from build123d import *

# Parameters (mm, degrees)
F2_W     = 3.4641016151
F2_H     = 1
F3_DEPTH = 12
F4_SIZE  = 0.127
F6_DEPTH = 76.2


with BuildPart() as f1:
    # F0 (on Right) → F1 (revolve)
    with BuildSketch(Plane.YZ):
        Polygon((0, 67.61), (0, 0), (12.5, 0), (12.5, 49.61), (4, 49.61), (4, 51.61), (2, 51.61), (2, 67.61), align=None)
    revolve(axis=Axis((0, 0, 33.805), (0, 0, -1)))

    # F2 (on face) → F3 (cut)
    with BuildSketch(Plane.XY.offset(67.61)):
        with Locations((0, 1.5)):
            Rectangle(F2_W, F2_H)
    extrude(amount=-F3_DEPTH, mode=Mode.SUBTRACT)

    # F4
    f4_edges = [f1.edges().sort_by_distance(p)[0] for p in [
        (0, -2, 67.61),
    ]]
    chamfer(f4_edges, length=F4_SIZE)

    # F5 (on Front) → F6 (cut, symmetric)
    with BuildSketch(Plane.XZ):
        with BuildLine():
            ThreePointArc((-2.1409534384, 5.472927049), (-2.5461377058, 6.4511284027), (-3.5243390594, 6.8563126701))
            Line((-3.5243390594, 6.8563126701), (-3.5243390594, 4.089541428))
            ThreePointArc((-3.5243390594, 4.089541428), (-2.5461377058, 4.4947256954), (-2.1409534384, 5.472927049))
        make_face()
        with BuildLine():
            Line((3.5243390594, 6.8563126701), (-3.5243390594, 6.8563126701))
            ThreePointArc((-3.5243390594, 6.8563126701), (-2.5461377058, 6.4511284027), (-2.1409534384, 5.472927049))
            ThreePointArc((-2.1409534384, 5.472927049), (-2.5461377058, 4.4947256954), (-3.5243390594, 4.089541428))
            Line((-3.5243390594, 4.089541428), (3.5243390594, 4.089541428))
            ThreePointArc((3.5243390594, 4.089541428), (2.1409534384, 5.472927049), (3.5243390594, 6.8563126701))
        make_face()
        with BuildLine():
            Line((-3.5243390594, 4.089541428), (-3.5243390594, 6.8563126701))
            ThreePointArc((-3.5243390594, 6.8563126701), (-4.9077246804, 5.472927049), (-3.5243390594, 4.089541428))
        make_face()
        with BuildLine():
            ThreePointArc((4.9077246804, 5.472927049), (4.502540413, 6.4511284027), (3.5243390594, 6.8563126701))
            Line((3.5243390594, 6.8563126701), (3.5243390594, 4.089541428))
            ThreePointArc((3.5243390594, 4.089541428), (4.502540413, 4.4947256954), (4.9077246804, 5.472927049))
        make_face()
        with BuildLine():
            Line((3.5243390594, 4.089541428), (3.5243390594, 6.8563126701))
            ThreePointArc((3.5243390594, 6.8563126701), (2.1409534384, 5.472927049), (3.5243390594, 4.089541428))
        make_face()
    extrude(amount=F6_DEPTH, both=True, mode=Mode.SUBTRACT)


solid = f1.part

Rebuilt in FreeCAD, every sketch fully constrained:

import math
import FreeCAD as App
import Part
import Sketcher

V = App.Vector


def edges_at(feature, points):
    """Names of the edges that pass closest to the given points."""
    edges = feature.Shape.Edges
    near = lambda p: min(range(len(edges)), key=lambda i: edges[i].distToShape(Part.Vertex(*p))[0])
    return sorted({f"Edge{near(p) + 1}" for p in points})


def add_polygon(sketch, points):
    """Adds a closed chain of lines whose ends are joined by coincident constraints."""
    first, n = sketch.GeometryCount, len(points)
    for a, b in zip(points, points[1:] + points[:1]):
        sketch.addGeometry(Part.LineSegment(App.Vector(*a, 0), App.Vector(*b, 0)), False)
    for i in range(n):
        sketch.addConstraint(Sketcher.Constraint("Coincident", first + i, 2, first + (i + 1) % n, 1))

doc = App.newDocument("Part")
body = doc.addObject("PartDesign::Body", "Body")

sketch1 = body.newObject("Sketcher::SketchObject", "Sketch")
sketch1.AttachmentSupport = (doc.getObject("YZ_Plane"), [""])
sketch1.MapMode = "FlatFace"
add_polygon(sketch1, [(0, 67.6), (0, 0), (12.5, 0), (12.5, 49.6), (4, 49.6), (4, 51.6), (2, 51.6), (2, 67.6)])
sketch1.addConstraint([
    Sketcher.Constraint("Vertical", 0),
    Sketcher.Constraint("Horizontal", 1),
    Sketcher.Constraint("Vertical", 2),
    Sketcher.Constraint("Horizontal", 3),
    Sketcher.Constraint("Vertical", 4),
    Sketcher.Constraint("Horizontal", 5),
    Sketcher.Constraint("Vertical", 6),
    Sketcher.Constraint("Horizontal", 7),
    Sketcher.Constraint("Coincident", 0, 2, -1, 1),
    Sketcher.Constraint("Equal", 5, 7),
    Sketcher.Constraint("Equal", 7, 4),
    Sketcher.Constraint("DistanceX", 5, 2, 5, 1, 2.0),
    Sketcher.Constraint("DistanceY", 6, 1, 6, 2, 16.0),
    Sketcher.Constraint("DistanceX", 1, 1, 1, 2, 12.5),
    Sketcher.Constraint("DistanceY", 0, 2, 0, 1, 67.61),
])
revolution = body.newObject("PartDesign::Revolution", "Revolution")
revolution.Profile = sketch1
revolution.ReferenceAxis = (sketch1, ["V_Axis"])
revolution.Angle = 360

sketch2 = body.newObject("Sketcher::SketchObject", "Sketch001")
sketch2.AttachmentSupport = (doc.getObject("XY_Plane"), [""])
sketch2.MapMode = "FlatFace"
sketch2.AttachmentOffset = App.Placement(V(0, 0, 67.61), App.Rotation())
add_polygon(sketch2, [(-1.7, 2), (-1.7, 1), (1.7, 1), (1.7, 2)])
sketch2.addConstraint([
    Sketcher.Constraint("Vertical", 0),
    Sketcher.Constraint("Horizontal", 1),
    Sketcher.Constraint("Vertical", 2),
    Sketcher.Constraint("Horizontal", 3),
    Sketcher.Constraint("DistanceY", 0, 2, 0, 1, 1.0),
    Sketcher.Constraint("DistanceY", -1, 1, 0, 2, 1.0),
    Sketcher.Constraint("DistanceX", 1, 1, 1, 2, 3.464102),
    Sketcher.Constraint("DistanceX", 0, 2, -1, 1, 1.732051),
])
pocket1 = body.newObject("PartDesign::Pocket", "Pocket")
pocket1.Profile = sketch2
pocket1.Length = 12
doc.recompute()

chamfer = body.newObject("PartDesign::Chamfer", "Chamfer")
chamfer.Base = (pocket1, edges_at(pocket1, [(0, -2, 67.61)]))
chamfer.Size = 0.127

sketch3 = body.newObject("Sketcher::SketchObject", "Sketch002")
sketch3.AttachmentSupport = (doc.getObject("XZ_Plane"), [""])
sketch3.MapMode = "FlatFace"
sketch3.addGeometry([
    Part.LineSegment(V(-3.5, 4.1, 0), V(3.5, 4.1, 0)),
    Part.ArcOfCircle(Part.Circle(V(3.5, 5.5, 0), V(0, 0, 1), 1.4), math.radians(-90), math.radians(0)),
    Part.ArcOfCircle(Part.Circle(V(3.5, 5.5, 0), V(0, 0, 1), 1.4), math.radians(0), math.radians(90)),
    Part.LineSegment(V(3.5, 6.9, 0), V(-3.5, 6.9, 0)),
    Part.ArcOfCircle(Part.Circle(V(-3.5, 5.5, 0), V(0, 0, 1), 1.4), math.radians(90), math.radians(270)),
], False)
sketch3.addConstraint([
    Sketcher.Constraint("Tangent", 0, 2, 1, 1),
    Sketcher.Constraint("Tangent", 1, 2, 2, 1),
    Sketcher.Constraint("Tangent", 2, 2, 3, 1),
    Sketcher.Constraint("Tangent", 3, 2, 4, 1),
    Sketcher.Constraint("Tangent", 4, 2, 0, 1),
    Sketcher.Constraint("Horizontal", 0),
    Sketcher.Constraint("Horizontal", 3),
    Sketcher.Constraint("Equal", 1, 2),
    Sketcher.Constraint("Horizontal", 4, 3, 1, 2),
    Sketcher.Constraint("Radius", 1, 1.383386),
    Sketcher.Constraint("DistanceX", 0, 1, 0, 2, 7.048678),
    Sketcher.Constraint("DistanceX", -1, 1, 1, 3, 3.524339),
    Sketcher.Constraint("DistanceY", -1, 1, 0, 2, 4.089541),
])
pocket2 = body.newObject("PartDesign::Pocket", "Pocket001")
pocket2.Profile = sketch3
pocket2.Length = 152.4
pocket2.Midplane = True

doc.recompute()
